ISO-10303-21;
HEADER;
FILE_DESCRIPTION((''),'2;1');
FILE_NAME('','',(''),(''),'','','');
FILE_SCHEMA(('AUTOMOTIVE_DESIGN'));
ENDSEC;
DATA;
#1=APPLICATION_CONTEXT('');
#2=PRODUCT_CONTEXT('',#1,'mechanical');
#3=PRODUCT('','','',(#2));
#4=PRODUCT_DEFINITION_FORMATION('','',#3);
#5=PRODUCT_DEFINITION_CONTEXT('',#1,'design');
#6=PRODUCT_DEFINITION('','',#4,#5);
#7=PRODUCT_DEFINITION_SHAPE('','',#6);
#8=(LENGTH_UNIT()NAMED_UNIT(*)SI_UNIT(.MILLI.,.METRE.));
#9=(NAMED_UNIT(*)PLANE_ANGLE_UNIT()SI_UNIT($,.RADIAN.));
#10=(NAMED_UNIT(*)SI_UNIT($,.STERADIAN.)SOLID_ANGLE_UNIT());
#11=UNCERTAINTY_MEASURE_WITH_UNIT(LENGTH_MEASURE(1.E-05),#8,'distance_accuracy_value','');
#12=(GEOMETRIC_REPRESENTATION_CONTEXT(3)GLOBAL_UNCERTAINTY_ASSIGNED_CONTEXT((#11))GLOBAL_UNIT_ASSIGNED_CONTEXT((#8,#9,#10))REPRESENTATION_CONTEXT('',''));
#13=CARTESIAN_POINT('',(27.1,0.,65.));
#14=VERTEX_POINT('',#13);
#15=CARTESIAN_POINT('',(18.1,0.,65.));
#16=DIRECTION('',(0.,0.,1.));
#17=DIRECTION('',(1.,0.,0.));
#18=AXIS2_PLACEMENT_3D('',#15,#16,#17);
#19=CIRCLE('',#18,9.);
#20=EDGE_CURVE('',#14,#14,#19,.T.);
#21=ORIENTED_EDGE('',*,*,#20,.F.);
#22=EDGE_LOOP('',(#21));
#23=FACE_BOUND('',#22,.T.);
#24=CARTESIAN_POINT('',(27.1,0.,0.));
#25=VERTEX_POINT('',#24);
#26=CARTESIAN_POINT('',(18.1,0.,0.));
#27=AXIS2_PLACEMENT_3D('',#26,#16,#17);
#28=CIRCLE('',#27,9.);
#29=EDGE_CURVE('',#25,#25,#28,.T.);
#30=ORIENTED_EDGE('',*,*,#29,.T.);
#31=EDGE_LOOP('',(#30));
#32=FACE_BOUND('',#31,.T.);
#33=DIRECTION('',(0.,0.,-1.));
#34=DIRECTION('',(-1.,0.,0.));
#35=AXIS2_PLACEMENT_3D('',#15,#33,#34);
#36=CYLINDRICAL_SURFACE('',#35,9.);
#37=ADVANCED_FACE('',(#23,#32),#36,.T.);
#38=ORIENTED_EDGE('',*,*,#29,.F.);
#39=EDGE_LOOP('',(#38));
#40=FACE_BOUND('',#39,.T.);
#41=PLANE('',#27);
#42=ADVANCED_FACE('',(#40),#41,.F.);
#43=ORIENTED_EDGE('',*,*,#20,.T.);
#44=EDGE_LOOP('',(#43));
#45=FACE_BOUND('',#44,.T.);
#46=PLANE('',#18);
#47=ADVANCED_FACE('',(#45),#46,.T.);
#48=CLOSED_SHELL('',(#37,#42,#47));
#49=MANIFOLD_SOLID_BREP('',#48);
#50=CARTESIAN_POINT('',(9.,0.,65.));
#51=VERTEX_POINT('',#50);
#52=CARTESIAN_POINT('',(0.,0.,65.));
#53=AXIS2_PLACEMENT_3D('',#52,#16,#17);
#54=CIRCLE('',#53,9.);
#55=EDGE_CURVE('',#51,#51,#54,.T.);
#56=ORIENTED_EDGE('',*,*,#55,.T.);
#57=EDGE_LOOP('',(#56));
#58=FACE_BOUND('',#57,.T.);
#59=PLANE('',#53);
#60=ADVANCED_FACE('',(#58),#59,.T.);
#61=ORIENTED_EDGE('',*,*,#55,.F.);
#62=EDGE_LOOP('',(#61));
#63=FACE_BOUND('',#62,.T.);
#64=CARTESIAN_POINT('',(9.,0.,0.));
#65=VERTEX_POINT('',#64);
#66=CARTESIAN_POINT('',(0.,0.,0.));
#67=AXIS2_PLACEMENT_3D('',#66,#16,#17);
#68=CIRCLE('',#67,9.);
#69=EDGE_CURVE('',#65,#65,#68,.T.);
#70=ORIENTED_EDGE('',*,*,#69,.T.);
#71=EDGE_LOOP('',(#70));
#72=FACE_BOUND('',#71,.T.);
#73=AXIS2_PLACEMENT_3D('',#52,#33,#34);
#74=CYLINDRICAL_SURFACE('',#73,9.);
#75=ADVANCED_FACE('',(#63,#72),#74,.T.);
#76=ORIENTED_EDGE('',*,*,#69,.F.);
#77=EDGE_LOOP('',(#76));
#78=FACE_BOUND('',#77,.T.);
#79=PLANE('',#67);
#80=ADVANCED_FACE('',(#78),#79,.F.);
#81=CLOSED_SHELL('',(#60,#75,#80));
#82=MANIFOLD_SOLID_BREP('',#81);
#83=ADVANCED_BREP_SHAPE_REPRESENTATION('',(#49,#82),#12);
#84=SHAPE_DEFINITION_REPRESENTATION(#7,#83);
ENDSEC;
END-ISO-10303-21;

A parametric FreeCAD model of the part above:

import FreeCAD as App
import Part
import Sketcher

doc = App.newDocument("Part")
body = doc.addObject("PartDesign::Body", "Body")

# Sketch on XY plane
sketch1 = body.newObject("Sketcher::SketchObject", "Sketch")
sketch1.AttachmentSupport = (doc.getObject("XY_Plane"), [""])
sketch1.MapMode = "FlatFace"
sketch1.addGeometry(Part.Circle(App.Vector(0, 0, 0), App.Vector(0, 0, 1), 9), False)
sketch1.addConstraint(Sketcher.Constraint("Coincident", 0, 3, -1, 1))
sketch1.addConstraint(Sketcher.Constraint("Diameter", 0, 18.0))
pad1 = body.newObject("PartDesign::Pad", "Pad")
pad1.Profile = sketch1
pad1.Length = 65
body2 = doc.addObject("PartDesign::Body", "Body001")

# Sketch on XY plane
sketch2 = body2.newObject("Sketcher::SketchObject", "Sketch001")
sketch2.AttachmentSupport = (doc.getObject("XY_Plane001"), [""])
sketch2.MapMode = "FlatFace"
sketch2.addGeometry(Part.Circle(App.Vector(18, 0, 0), App.Vector(0, 0, 1), 9), False)
sketch2.addConstraint(Sketcher.Constraint("PointOnObject", 0, 3, -1))
sketch2.addConstraint(Sketcher.Constraint("Diameter", 0, 18.0))
sketch2.addConstraint(Sketcher.Constraint("DistanceX", -1, 1, 0, 3, 18.1))
pad2 = body2.newObject("PartDesign::Pad", "Pad001")
pad2.Profile = sketch2
pad2.Length = 65

doc.recompute()
